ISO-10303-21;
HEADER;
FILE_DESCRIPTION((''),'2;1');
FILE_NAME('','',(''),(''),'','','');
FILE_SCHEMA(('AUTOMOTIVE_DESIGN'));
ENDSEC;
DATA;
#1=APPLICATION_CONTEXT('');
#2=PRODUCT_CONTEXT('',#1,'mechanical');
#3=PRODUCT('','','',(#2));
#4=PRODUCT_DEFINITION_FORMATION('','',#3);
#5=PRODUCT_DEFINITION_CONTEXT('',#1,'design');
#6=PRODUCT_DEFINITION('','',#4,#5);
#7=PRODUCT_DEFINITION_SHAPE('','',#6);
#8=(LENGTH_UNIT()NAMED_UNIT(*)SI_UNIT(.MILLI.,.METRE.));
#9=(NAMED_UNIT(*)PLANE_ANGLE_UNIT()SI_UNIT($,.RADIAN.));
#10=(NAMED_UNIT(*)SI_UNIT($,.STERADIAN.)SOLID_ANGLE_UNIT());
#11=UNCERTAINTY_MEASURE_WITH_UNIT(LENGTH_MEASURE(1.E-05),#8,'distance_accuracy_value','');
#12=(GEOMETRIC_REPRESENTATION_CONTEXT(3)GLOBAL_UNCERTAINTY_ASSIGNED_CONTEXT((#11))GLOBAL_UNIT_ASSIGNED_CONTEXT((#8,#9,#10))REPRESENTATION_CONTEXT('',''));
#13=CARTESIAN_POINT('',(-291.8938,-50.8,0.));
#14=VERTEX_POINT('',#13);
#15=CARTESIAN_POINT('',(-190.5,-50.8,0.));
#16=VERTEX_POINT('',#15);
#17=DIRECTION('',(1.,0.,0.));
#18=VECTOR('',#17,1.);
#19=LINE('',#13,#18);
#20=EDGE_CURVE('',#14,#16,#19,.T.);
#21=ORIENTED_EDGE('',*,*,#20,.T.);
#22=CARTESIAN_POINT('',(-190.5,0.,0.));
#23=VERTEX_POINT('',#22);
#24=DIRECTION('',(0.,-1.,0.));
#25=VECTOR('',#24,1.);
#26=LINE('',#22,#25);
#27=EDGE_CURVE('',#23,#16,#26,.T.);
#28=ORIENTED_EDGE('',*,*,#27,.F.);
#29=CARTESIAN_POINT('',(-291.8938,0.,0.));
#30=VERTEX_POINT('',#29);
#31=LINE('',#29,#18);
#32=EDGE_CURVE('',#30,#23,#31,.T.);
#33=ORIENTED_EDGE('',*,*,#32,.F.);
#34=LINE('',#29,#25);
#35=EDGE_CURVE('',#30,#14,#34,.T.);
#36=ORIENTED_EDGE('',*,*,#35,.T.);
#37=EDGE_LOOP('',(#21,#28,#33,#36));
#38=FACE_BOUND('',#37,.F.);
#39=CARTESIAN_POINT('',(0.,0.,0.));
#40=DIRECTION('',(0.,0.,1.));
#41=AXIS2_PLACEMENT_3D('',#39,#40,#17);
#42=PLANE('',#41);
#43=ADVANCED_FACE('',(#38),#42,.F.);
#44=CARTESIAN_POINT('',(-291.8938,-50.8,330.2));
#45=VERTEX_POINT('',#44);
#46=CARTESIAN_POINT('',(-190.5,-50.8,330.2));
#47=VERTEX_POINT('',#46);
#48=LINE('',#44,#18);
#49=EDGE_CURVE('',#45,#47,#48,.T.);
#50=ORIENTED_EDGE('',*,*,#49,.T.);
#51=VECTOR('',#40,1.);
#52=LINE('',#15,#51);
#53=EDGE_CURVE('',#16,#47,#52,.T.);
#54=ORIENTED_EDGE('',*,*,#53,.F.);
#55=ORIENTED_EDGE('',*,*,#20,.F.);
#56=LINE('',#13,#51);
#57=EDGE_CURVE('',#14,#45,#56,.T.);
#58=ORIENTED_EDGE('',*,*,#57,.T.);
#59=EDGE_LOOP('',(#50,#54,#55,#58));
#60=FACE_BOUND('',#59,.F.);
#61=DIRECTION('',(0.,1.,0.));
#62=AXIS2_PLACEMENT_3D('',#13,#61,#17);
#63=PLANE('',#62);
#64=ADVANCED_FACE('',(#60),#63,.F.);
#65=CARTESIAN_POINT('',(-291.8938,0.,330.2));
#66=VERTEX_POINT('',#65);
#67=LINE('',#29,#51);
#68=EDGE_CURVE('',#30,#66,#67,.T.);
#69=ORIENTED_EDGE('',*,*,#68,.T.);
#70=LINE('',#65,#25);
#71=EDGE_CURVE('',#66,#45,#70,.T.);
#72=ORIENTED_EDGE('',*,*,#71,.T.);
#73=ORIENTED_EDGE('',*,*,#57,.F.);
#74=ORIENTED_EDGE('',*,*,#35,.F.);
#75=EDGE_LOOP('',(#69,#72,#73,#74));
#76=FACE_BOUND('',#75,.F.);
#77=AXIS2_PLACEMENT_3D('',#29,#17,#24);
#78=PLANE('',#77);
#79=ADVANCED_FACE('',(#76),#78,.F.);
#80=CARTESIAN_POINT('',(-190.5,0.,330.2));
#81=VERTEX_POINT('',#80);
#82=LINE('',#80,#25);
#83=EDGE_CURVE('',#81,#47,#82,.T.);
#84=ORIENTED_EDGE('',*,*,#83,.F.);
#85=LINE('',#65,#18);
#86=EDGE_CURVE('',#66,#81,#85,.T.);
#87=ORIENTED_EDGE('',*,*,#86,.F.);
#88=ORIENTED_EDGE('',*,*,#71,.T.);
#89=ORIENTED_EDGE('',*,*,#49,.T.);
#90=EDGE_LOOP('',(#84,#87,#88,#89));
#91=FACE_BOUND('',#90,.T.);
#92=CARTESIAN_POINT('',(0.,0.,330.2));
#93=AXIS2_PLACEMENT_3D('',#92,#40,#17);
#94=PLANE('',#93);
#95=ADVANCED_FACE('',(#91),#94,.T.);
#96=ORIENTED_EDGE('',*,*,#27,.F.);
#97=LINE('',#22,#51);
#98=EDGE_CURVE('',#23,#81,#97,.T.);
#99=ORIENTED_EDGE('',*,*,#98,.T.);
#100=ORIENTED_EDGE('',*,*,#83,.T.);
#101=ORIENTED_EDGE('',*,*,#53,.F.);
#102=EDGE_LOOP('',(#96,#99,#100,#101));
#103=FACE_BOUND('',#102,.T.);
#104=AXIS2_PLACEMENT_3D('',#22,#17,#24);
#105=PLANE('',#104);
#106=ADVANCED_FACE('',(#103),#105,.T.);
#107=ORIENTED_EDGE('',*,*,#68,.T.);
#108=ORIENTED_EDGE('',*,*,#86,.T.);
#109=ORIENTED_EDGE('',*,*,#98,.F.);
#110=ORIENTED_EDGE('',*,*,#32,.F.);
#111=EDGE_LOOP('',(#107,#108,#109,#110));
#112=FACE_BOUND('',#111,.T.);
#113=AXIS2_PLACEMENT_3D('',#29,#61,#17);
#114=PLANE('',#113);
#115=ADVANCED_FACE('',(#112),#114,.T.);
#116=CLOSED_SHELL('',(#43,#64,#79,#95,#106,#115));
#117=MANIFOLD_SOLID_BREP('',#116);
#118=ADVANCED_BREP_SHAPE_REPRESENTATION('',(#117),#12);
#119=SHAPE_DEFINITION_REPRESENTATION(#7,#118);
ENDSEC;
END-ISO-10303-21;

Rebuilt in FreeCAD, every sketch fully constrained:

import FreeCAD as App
import Part
import Sketcher
Q = App.Units.Quantity


def add_polygon(sketch, points):
    """Adds a closed chain of lines whose ends are joined by coincident constraints."""
    first, n = sketch.GeometryCount, len(points)
    for a, b in zip(points, points[1:] + points[:1]):
        sketch.addGeometry(Part.LineSegment(App.Vector(*a, 0), App.Vector(*b, 0)), False)
    for i in range(n):
        sketch.addConstraint(Sketcher.Constraint("Coincident", first + i, 2, first + (i + 1) % n, 1))

doc = App.newDocument("Part")
body = doc.addObject("PartDesign::Body", "Body")

# Sketch on XY plane
sketch1 = doc.addObject("Sketcher::SketchObject", "Sketch")
body.addObject(sketch1)
sketch1.AttachmentSupport = (doc.XY_Plane, [""])
sketch1.MapMode = "FlatFace"
add_polygon(sketch1, [(-190, -51), (-190, 0), (-292, 0), (-292, -51)])  # lines 0-3
sketch1.addConstraint(Sketcher.Constraint("Vertical", 0))
sketch1.addConstraint(Sketcher.Constraint("Horizontal", 1))
sketch1.addConstraint(Sketcher.Constraint("Vertical", 2))
sketch1.addConstraint(Sketcher.Constraint("Horizontal", 3))
sketch1.addConstraint(Sketcher.Constraint("PointOnObject", 0, 2, -1))
sketch1.addConstraint(Sketcher.Constraint("DistanceY", 0, 1, 0, 2, Q("2 in")))
sketch1.addConstraint(Sketcher.Constraint("DistanceX", 0, 2, -1, 1, Q("7.5 in")))
sketch1.addConstraint(Sketcher.Constraint("DistanceX", 1, 2, 1, 1, Q("101.3938 mm")))
pad1 = doc.addObject("PartDesign::Pad", "Pad")
body.addObject(pad1)
pad1.Profile = sketch1
pad1.Length = Q("13 in")

doc.recompute()
